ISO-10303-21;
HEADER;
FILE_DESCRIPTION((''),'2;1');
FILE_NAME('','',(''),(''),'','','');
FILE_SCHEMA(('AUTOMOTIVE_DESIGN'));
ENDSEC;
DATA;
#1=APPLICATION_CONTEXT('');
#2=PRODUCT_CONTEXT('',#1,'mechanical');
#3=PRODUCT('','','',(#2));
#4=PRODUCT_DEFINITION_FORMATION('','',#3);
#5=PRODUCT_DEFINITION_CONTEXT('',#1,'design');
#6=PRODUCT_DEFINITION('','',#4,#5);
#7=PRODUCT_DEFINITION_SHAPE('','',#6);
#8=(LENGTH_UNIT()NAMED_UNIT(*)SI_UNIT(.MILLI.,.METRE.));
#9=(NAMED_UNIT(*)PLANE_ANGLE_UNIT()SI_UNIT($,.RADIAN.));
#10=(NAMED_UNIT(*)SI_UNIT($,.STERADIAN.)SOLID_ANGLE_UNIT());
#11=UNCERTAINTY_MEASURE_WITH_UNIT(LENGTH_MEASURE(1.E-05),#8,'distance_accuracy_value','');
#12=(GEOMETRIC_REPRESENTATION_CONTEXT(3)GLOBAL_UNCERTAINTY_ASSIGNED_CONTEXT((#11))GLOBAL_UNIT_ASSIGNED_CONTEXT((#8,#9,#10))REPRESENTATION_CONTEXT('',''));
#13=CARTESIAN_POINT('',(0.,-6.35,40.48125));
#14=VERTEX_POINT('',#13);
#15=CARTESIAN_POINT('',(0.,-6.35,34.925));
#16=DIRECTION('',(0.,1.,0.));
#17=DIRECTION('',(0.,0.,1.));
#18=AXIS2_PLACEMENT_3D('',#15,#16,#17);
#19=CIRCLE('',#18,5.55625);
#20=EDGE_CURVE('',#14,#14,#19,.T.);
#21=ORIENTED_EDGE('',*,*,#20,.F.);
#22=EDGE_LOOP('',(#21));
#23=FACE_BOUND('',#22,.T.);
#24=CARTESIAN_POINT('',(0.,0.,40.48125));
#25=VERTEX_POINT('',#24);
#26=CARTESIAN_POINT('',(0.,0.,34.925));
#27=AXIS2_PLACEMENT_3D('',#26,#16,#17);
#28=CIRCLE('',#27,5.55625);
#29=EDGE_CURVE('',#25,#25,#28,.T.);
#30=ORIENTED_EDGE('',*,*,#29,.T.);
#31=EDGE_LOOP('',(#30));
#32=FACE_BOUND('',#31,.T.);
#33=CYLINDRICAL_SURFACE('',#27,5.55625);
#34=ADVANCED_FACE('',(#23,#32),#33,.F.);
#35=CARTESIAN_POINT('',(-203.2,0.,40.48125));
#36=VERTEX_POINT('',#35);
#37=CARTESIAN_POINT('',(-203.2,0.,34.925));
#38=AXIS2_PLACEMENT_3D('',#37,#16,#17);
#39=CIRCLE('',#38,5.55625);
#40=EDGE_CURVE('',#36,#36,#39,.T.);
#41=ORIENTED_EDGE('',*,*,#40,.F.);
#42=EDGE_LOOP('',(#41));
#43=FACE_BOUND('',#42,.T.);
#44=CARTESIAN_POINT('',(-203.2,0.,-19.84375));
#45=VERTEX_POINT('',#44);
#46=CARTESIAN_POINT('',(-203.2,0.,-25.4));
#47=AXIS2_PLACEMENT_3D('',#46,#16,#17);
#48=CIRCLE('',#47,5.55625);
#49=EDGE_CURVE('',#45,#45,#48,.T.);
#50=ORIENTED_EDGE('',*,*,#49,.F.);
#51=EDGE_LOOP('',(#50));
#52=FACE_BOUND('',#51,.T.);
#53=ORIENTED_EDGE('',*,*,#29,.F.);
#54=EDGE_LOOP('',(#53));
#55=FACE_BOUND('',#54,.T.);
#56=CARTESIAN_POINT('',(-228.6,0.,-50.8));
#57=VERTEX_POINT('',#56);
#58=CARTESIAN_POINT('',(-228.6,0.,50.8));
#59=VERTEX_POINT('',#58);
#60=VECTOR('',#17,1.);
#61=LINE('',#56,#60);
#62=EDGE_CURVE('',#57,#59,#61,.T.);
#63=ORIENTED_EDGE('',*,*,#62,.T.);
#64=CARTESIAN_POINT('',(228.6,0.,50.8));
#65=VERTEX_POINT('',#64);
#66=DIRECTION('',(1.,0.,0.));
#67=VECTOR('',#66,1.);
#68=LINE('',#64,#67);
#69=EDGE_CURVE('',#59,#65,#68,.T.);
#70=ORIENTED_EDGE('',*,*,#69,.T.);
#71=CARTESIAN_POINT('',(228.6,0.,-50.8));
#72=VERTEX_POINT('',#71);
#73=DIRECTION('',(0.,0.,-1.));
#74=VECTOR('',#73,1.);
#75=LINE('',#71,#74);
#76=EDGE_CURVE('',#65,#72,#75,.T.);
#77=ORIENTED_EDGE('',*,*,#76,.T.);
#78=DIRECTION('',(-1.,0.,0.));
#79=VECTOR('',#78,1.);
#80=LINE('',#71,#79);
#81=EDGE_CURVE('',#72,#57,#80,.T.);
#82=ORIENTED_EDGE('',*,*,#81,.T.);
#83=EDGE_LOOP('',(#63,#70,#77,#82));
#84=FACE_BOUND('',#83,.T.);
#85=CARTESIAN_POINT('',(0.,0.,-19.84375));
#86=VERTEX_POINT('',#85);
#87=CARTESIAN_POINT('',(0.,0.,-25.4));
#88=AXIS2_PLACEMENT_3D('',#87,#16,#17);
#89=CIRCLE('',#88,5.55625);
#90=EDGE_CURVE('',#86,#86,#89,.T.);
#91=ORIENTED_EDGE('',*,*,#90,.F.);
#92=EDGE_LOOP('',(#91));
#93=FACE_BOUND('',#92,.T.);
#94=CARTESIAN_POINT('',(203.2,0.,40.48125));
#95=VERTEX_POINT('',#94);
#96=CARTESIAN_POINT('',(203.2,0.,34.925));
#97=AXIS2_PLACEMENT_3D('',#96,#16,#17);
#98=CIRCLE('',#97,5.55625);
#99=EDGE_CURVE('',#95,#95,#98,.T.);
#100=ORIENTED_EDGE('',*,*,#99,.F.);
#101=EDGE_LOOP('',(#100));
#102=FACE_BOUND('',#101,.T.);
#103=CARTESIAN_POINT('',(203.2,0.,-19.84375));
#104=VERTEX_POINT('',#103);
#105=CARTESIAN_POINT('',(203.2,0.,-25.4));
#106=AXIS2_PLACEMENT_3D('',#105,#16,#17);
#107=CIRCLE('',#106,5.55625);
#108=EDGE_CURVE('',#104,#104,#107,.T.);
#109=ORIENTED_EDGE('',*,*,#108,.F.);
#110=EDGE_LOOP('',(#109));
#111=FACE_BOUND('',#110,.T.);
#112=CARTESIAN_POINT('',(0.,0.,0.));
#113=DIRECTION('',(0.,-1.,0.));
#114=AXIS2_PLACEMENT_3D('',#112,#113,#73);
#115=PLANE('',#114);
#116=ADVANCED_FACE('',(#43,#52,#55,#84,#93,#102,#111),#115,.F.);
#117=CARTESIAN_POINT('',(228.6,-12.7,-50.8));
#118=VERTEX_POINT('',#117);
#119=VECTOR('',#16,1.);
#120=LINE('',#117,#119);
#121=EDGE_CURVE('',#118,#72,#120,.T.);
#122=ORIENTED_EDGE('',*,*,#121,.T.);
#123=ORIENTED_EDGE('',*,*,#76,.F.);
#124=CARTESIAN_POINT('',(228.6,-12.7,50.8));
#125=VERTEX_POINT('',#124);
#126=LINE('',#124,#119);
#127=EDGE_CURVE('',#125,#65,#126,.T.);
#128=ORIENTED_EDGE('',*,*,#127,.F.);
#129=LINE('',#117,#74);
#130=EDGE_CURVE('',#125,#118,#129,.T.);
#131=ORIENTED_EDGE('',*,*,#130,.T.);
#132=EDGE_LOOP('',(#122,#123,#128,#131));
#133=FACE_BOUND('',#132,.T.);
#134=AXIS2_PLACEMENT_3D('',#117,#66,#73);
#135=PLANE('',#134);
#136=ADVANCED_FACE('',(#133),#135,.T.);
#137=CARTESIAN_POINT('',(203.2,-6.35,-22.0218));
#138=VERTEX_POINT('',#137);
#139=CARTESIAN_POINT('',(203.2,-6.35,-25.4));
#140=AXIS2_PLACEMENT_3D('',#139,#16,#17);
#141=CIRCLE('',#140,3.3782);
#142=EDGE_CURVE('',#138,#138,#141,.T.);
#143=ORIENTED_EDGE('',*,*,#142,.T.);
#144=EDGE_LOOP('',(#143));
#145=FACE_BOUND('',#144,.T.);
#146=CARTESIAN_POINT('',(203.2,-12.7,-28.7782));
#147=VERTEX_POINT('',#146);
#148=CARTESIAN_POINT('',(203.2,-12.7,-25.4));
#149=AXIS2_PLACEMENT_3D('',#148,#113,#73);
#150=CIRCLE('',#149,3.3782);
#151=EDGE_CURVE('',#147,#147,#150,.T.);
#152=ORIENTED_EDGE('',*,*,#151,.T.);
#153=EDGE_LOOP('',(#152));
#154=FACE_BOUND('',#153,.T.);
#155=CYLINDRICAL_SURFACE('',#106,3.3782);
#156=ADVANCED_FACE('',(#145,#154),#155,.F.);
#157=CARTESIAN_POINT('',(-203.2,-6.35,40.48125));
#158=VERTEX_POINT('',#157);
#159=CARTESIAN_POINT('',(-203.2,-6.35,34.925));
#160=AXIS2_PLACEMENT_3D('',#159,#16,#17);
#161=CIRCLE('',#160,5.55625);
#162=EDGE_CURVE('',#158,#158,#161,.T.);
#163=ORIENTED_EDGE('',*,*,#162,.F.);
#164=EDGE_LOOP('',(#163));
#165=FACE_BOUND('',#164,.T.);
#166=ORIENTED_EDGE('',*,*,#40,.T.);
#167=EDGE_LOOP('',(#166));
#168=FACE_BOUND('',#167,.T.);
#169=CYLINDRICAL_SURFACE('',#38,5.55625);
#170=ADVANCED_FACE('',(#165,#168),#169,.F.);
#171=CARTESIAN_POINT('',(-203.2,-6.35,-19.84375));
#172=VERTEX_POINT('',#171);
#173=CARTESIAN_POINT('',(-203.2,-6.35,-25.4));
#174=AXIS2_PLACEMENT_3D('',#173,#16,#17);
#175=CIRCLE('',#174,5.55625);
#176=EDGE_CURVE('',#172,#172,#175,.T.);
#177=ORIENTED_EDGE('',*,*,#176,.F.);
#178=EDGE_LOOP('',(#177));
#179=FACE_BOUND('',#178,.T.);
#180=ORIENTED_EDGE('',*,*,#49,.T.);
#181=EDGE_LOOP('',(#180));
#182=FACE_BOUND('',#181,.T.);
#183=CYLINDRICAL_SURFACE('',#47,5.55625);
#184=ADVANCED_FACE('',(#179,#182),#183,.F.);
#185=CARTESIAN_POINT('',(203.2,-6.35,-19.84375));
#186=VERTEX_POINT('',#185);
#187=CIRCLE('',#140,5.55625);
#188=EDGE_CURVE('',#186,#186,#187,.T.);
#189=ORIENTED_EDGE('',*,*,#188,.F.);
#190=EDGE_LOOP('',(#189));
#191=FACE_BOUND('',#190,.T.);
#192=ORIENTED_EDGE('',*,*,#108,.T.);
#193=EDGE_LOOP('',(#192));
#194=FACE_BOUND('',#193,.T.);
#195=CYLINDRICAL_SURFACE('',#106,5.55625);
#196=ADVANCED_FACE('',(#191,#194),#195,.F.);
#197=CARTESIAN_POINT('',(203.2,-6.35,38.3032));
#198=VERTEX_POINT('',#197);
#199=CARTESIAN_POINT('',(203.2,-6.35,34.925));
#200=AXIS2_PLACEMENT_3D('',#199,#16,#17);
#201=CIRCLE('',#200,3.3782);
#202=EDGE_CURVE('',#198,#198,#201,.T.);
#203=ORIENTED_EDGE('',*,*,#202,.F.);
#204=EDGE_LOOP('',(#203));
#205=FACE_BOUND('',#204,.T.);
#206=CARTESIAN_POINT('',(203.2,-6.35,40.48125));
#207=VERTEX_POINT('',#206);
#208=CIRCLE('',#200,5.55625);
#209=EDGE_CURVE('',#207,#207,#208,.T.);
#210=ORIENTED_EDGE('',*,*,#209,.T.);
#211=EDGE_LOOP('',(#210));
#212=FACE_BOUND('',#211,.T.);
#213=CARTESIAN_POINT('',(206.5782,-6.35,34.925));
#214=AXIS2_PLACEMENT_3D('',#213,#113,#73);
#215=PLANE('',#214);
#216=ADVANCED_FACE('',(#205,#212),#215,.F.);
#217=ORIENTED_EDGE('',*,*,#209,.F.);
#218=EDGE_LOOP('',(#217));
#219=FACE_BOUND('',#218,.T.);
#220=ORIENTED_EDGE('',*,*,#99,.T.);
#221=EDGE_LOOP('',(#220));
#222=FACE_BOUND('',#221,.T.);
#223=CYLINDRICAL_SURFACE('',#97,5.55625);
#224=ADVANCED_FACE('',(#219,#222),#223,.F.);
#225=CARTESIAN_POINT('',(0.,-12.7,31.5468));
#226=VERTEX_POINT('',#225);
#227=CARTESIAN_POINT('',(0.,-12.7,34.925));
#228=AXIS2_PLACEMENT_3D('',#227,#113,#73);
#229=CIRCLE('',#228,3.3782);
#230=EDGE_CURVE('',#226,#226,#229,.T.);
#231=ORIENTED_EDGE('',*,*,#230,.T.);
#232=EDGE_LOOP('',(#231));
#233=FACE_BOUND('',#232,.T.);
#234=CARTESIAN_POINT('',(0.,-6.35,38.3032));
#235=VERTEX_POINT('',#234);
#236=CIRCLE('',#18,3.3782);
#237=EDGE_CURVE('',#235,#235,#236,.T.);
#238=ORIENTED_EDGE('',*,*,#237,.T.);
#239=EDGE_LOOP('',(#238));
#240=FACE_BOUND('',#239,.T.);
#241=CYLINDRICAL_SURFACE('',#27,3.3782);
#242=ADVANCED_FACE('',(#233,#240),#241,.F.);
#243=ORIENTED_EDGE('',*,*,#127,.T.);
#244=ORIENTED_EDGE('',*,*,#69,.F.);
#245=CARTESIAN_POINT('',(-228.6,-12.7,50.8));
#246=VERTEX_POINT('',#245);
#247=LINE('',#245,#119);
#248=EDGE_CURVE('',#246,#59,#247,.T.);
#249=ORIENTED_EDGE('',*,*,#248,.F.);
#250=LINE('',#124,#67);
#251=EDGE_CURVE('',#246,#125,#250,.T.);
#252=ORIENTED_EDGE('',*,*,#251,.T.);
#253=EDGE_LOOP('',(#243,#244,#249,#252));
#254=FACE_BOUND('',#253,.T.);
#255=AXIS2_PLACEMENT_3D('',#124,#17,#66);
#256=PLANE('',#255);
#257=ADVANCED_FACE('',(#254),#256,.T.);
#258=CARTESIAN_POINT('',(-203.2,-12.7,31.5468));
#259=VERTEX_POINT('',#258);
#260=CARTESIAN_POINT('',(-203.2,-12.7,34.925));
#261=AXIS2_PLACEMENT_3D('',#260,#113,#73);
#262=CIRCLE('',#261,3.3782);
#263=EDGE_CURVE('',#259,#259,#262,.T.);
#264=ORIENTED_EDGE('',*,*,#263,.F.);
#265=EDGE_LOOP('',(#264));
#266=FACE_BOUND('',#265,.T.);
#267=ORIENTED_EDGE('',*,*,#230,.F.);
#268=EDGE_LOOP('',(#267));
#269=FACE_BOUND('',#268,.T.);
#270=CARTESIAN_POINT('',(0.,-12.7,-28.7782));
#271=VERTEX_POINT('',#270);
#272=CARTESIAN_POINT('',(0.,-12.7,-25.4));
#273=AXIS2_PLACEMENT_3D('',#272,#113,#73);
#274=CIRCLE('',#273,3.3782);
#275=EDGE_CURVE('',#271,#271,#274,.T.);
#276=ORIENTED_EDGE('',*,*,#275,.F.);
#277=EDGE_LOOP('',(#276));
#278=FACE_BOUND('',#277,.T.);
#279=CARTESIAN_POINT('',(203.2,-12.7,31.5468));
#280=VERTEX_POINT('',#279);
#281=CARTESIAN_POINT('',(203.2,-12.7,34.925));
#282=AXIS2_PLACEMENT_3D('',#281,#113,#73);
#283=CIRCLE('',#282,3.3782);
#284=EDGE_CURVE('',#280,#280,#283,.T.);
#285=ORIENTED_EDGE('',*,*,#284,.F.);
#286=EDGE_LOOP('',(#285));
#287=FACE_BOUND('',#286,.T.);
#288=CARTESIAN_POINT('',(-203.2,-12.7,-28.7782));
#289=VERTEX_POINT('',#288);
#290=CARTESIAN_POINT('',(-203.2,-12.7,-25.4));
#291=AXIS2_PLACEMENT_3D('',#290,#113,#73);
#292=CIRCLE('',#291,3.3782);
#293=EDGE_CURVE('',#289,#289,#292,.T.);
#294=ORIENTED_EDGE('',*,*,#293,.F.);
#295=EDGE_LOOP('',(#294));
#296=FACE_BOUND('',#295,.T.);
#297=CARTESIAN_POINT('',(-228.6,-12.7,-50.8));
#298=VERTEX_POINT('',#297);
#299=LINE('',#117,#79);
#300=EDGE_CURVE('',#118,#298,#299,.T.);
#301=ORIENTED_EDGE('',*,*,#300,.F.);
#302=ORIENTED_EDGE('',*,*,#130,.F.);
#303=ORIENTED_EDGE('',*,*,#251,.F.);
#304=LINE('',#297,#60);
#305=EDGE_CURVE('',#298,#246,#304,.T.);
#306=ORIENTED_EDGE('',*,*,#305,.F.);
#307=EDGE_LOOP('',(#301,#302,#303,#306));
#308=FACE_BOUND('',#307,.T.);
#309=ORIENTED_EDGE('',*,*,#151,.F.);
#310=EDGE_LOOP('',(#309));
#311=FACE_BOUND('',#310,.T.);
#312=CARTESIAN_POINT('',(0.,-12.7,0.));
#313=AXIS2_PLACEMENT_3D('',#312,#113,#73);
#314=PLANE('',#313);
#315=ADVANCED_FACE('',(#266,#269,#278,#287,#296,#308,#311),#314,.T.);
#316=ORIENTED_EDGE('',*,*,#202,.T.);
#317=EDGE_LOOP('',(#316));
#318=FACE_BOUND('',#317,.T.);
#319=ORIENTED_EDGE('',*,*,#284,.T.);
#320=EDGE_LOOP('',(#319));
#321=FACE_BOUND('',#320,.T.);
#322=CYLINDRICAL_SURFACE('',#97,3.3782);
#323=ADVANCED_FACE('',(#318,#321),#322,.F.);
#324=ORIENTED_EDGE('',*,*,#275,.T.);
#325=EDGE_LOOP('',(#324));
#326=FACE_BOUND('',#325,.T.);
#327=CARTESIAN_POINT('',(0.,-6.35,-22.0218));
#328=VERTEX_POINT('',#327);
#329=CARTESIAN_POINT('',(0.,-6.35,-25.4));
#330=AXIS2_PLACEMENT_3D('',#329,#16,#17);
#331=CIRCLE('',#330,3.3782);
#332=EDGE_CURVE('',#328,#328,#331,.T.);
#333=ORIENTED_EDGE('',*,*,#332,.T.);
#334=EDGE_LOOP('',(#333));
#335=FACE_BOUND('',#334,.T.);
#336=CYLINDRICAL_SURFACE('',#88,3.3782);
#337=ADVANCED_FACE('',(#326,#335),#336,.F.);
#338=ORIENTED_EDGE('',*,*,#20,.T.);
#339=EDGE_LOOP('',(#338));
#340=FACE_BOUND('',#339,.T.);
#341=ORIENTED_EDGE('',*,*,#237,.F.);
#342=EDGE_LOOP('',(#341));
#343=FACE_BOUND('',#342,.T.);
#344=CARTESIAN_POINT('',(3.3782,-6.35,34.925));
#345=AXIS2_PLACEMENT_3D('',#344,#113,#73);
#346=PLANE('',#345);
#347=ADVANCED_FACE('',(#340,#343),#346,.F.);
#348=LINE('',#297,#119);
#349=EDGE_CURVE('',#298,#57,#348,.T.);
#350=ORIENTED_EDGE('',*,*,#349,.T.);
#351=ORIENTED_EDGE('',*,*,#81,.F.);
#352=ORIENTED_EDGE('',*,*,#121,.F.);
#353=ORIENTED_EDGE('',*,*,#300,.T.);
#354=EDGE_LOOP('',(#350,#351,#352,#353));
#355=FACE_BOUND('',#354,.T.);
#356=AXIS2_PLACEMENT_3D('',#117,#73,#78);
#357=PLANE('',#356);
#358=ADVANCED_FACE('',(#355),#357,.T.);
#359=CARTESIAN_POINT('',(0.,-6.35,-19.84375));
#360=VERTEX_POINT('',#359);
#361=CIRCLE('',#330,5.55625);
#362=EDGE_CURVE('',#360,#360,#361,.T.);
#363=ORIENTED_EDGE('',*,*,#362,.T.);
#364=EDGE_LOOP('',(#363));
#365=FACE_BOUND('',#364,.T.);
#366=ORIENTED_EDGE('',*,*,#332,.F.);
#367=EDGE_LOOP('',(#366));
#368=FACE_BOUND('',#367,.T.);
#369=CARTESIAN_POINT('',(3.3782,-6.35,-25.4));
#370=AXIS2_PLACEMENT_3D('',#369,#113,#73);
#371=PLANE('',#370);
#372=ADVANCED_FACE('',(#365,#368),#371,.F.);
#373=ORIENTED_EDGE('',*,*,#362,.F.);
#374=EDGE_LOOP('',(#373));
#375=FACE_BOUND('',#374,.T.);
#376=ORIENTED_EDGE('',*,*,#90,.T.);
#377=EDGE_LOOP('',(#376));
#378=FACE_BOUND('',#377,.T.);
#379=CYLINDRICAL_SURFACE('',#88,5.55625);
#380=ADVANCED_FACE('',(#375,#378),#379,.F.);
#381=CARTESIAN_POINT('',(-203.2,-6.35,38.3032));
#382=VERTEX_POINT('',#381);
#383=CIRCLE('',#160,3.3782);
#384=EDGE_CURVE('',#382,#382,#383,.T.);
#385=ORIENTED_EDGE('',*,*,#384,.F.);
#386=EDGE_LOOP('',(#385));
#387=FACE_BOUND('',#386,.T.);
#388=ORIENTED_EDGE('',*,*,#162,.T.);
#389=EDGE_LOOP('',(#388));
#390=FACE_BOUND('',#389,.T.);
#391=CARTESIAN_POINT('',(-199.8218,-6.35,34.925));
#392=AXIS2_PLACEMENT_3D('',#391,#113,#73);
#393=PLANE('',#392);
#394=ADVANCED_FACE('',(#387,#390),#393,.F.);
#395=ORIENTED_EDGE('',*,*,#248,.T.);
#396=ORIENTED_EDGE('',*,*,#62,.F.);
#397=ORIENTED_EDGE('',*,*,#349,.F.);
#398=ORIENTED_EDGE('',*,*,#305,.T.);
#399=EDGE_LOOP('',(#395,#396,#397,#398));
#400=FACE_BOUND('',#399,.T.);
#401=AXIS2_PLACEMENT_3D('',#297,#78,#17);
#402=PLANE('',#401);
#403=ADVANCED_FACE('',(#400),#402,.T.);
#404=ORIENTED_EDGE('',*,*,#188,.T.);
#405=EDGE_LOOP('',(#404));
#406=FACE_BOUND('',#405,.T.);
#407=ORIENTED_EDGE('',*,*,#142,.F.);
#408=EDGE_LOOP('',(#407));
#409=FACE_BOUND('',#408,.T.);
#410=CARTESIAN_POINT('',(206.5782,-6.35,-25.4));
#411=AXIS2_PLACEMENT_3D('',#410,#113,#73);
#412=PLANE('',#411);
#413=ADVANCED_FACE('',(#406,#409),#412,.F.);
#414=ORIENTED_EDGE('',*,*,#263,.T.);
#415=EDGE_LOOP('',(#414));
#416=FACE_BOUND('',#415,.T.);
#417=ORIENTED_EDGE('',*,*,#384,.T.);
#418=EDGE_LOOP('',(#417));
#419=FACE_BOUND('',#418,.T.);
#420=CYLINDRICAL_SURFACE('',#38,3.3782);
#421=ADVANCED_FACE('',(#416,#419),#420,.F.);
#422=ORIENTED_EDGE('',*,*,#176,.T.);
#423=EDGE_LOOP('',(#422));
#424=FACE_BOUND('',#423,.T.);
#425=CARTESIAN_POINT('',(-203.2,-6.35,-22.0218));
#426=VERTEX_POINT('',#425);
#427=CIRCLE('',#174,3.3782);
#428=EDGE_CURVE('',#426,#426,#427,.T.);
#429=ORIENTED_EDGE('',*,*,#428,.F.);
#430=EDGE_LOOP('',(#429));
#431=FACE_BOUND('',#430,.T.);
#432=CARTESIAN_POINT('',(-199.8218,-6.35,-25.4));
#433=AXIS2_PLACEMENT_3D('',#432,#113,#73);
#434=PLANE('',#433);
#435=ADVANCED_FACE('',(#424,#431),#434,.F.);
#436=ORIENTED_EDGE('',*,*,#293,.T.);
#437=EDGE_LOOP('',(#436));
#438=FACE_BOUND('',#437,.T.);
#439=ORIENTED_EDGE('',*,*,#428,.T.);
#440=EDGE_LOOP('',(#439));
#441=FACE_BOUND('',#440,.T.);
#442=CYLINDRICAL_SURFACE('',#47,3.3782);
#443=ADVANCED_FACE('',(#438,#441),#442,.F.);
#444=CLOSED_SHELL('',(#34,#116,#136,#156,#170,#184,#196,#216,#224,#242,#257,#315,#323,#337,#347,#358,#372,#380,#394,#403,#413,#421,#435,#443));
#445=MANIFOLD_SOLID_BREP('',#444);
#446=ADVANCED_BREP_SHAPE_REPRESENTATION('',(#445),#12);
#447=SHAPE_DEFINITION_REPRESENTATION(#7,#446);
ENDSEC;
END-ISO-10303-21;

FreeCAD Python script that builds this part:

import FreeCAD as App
import Part
import Sketcher
Q = App.Units.Quantity


def add_polygon(sketch, points):
    """Adds a closed chain of lines whose ends are joined by coincident constraints."""
    first, n = sketch.GeometryCount, len(points)
    for a, b in zip(points, points[1:] + points[:1]):
        sketch.addGeometry(Part.LineSegment(App.Vector(*a, 0), App.Vector(*b, 0)), False)
    for i in range(n):
        sketch.addConstraint(Sketcher.Constraint("Coincident", first + i, 2, first + (i + 1) % n, 1))

doc = App.newDocument("Part")
body = doc.addObject("PartDesign::Body", "Body")

sketch1 = body.newObject("Sketcher::SketchObject", "Sketch")
sketch1.AttachmentSupport = (doc.getObject("XZ_Plane"), [""])
sketch1.MapMode = "FlatFace"
add_polygon(sketch1, [(-229, -51), (-229, 51), (229, 51), (229, -51)])
sketch1.addConstraint([
    Sketcher.Constraint("Vertical", 0),
    Sketcher.Constraint("Horizontal", 1),
    Sketcher.Constraint("Vertical", 2),
    Sketcher.Constraint("Horizontal", 3),
    Sketcher.Constraint("Symmetric", 0, 2, 2, 2, -1, 1),
    Sketcher.Constraint("DistanceX", 1, 1, 1, 2, Q("18 in")),
    Sketcher.Constraint("DistanceY", 0, 1, 0, 2, Q("4 in")),
])
pad1 = body.newObject("PartDesign::Pad", "Pad")
pad1.Profile = sketch1
pad1.Length = Q("0.5 in")

sketch2 = body.newObject("Sketcher::SketchObject", "Sketch001")
sketch2.AttachmentSupport = (doc.getObject("XZ_Plane"), [""])
sketch2.MapMode = "FlatFace"
sketch2.addGeometry([
    Part.Circle(App.Vector(-203.2, -25.4, 0), App.Vector(0, 0, 1), 3.4),
    Part.Circle(App.Vector(-203.2, 34.9, 0), App.Vector(0, 0, 1), 3.4),
    Part.Circle(App.Vector(0, 34.9, 0), App.Vector(0, 0, 1), 3.4),
    Part.Circle(App.Vector(0, -25.4, 0), App.Vector(0, 0, 1), 3.4),
    Part.Circle(App.Vector(203.2, -25.4, 0), App.Vector(0, 0, 1), 3.4),
    Part.Circle(App.Vector(203.2, 34.9, 0), App.Vector(0, 0, 1), 3.4),
], False)
sketch2.addConstraint([
    Sketcher.Constraint("Equal", 0, 1),
    Sketcher.Constraint("Equal", 1, 2),
    Sketcher.Constraint("Equal", 2, 3),
    Sketcher.Constraint("Equal", 3, 4),
    Sketcher.Constraint("Equal", 4, 5),
    Sketcher.Constraint("Symmetric", 0, 3, 4, 3, -2),
    Sketcher.Constraint("Symmetric", 1, 3, 5, 3, -2),
    Sketcher.Constraint("PointOnObject", 2, 3, -2),
    Sketcher.Constraint("PointOnObject", 3, 3, -2),
    Sketcher.Constraint("Horizontal", 1, 3, 2, 3),
    Sketcher.Constraint("Horizontal", 0, 3, 3, 3),
    Sketcher.Constraint("Vertical", 0, 3, 1, 3),
    Sketcher.Constraint("Diameter", 0, Q("0.266 in")),
    Sketcher.Constraint("DistanceX", 0, 3, -1, 1, Q("8 in")),
    Sketcher.Constraint("DistanceY", 0, 3, -1, 1, Q("1 in")),
    Sketcher.Constraint("DistanceY", -1, 1, 1, 3, Q("1.375 in")),
])
doc.recompute()
hole = body.newObject("PartDesign::Hole", "Hole")
hole.Profile = sketch2
hole.ThreadType = "None"
hole.Diameter = Q("0.266 in")
hole.DepthType = "Dimension"
hole.Depth = 14.480173
hole.DrillPoint = "Angled"
hole.DrillPointAngle = 118
hole.HoleCutType = "Counterbore"
hole.HoleCutDiameter = Q("0.4375 in")
hole.HoleCutDepth = Q("0.25 in")
hole.Reversed = True

doc.recompute()
